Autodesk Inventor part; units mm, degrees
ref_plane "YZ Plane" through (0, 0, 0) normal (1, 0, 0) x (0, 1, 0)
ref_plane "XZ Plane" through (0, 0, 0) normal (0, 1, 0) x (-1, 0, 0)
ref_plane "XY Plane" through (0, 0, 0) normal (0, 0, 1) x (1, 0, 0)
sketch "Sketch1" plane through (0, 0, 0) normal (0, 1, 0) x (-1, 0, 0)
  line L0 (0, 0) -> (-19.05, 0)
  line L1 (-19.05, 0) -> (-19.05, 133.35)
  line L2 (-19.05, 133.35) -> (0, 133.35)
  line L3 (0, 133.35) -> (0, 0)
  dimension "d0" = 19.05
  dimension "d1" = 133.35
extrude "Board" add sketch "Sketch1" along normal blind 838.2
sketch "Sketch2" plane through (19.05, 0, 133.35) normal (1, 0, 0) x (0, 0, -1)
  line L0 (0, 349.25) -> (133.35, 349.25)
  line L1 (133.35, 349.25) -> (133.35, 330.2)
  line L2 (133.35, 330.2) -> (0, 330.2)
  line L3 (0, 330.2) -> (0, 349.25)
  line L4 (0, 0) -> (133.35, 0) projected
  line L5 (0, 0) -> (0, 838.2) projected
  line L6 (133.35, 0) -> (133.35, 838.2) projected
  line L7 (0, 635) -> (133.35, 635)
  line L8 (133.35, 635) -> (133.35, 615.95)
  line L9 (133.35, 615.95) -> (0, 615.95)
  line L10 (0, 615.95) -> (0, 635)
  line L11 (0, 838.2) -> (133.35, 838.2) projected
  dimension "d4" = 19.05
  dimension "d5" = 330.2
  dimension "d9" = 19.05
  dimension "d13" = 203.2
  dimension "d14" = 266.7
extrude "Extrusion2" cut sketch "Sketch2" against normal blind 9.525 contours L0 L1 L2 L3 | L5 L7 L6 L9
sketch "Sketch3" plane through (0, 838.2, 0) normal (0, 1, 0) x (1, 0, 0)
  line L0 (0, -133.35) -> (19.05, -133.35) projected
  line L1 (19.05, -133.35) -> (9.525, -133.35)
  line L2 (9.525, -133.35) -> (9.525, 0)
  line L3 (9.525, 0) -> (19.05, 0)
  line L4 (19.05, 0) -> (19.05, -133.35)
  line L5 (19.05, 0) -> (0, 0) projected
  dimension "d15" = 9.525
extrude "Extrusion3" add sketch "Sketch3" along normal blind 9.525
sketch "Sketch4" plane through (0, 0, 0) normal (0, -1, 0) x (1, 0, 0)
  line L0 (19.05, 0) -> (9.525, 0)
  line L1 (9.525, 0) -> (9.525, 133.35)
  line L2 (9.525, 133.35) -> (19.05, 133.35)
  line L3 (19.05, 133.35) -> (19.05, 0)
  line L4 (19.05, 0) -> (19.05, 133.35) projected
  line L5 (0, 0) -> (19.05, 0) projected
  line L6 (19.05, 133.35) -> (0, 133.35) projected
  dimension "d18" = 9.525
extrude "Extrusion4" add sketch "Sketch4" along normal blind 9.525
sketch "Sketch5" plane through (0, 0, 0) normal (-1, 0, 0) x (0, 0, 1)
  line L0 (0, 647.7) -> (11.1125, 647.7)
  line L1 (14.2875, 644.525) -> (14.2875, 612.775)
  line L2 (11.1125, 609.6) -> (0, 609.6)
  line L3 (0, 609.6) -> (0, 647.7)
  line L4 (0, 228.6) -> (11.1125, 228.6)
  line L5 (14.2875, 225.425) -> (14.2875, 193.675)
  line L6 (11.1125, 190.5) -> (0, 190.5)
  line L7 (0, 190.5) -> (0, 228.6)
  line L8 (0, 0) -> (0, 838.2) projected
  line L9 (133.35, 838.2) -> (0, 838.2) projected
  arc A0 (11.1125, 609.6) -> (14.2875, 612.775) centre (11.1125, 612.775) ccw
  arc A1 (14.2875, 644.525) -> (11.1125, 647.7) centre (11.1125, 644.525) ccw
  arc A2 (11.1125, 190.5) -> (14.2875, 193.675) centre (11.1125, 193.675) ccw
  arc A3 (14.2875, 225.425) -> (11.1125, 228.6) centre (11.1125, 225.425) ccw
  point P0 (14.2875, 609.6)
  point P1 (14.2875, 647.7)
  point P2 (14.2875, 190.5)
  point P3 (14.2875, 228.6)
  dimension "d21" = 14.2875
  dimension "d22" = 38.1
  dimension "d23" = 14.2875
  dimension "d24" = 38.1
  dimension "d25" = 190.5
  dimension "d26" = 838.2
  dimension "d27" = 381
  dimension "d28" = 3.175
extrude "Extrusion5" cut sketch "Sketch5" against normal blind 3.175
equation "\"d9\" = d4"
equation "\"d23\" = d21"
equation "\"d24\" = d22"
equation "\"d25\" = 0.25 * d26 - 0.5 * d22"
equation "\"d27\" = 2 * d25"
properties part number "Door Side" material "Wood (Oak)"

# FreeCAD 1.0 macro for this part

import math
import FreeCAD as App
import Part
import Sketcher
Q = App.Units.Quantity

doc = App.newDocument("Part")
body = doc.addObject("PartDesign::Body", "Body")

# Sketch on XZ plane
sketch1 = doc.addObject("Sketcher::SketchObject", "Sketch")
body.addObject(sketch1)
sketch1.AttachmentSupport = (doc.XZ_Plane, [""])
sketch1.MapMode = "FlatFace"
sketch1.addGeometry(Part.LineSegment(App.Vector(19, 0, 0), App.Vector(0, 0, 0)), False)
sketch1.addGeometry(Part.LineSegment(App.Vector(0, 0, 0), App.Vector(0, 133, 0)), False)
sketch1.addGeometry(Part.LineSegment(App.Vector(0, 133, 0), App.Vector(19, 133, 0)), False)
sketch1.addGeometry(Part.LineSegment(App.Vector(19, 133, 0), App.Vector(19, 0, 0)), False)
sketch1.addConstraint(Sketcher.Constraint("Coincident", 0, 2, 1, 1))
sketch1.addConstraint(Sketcher.Constraint("Coincident", 1, 2, 2, 1))
sketch1.addConstraint(Sketcher.Constraint("Coincident", 2, 2, 3, 1))
sketch1.addConstraint(Sketcher.Constraint("Coincident", 3, 2, 0, 1))
sketch1.addConstraint(Sketcher.Constraint("Horizontal", 0))
sketch1.addConstraint(Sketcher.Constraint("Vertical", 1))
sketch1.addConstraint(Sketcher.Constraint("Horizontal", 2))
sketch1.addConstraint(Sketcher.Constraint("Vertical", 3))
sketch1.addConstraint(Sketcher.Constraint("Coincident", 0, 2, -1, 1))
sketch1.addConstraint(Sketcher.Constraint("DistanceX", 0, 2, 0, 1, Q("0.75 in")))
sketch1.addConstraint(Sketcher.Constraint("DistanceY", 1, 1, 1, 2, Q("5.25 in")))
pad1 = doc.addObject("PartDesign::Pad", "Pad")
body.addObject(pad1)
pad1.Profile = sketch1
pad1.Length = Q("33 in")
pad1.Reversed = True

# Sketch on YZ plane
sketch2 = doc.addObject("Sketcher::SketchObject", "Sketch001")
body.addObject(sketch2)
sketch2.AttachmentSupport = (doc.YZ_Plane, [""])
sketch2.MapMode = "FlatFace"
sketch2.AttachmentOffset = App.Placement(App.Vector(0, 0, 0.75 * 25.4), App.Rotation())
sketch2.addGeometry(Part.LineSegment(App.Vector(349, 0, 0), App.Vector(349, 133, 0)), False)
sketch2.addGeometry(Part.LineSegment(App.Vector(349, 133, 0), App.Vector(330, 133, 0)), False)
sketch2.addGeometry(Part.LineSegment(App.Vector(330, 133, 0), App.Vector(330, 0, 0)), False)
sketch2.addGeometry(Part.LineSegment(App.Vector(330, 0, 0), App.Vector(349, 0, 0)), False)
sketch2.addGeometry(Part.LineSegment(App.Vector(635, 133, 0), App.Vector(616, 133, 0)), False)
sketch2.addGeometry(Part.LineSegment(App.Vector(616, 133, 0), App.Vector(616, 0, 0)), False)
sketch2.addGeometry(Part.LineSegment(App.Vector(616, 0, 0), App.Vector(635, 0, 0)), False)
sketch2.addGeometry(Part.LineSegment(App.Vector(635, 0, 0), App.Vector(635, 133, 0)), False)
sketch2.addConstraint(Sketcher.Constraint("Coincident", 0, 2, 1, 1))
sketch2.addConstraint(Sketcher.Constraint("Coincident", 1, 2, 2, 1))
sketch2.addConstraint(Sketcher.Constraint("Coincident", 2, 2, 3, 1))
sketch2.addConstraint(Sketcher.Constraint("Coincident", 3, 2, 0, 1))
sketch2.addConstraint(Sketcher.Constraint("Coincident", 4, 2, 5, 1))
sketch2.addConstraint(Sketcher.Constraint("Coincident", 5, 2, 6, 1))
sketch2.addConstraint(Sketcher.Constraint("Coincident", 6, 2, 7, 1))
sketch2.addConstraint(Sketcher.Constraint("Coincident", 7, 2, 4, 1))
sketch2.addConstraint(Sketcher.Constraint("Vertical", 0))
sketch2.addConstraint(Sketcher.Constraint("Horizontal", 1))
sketch2.addConstraint(Sketcher.Constraint("Vertical", 2))
sketch2.addConstraint(Sketcher.Constraint("Horizontal", 3))
sketch2.addConstraint(Sketcher.Constraint("Horizontal", 4))
sketch2.addConstraint(Sketcher.Constraint("Vertical", 5))
sketch2.addConstraint(Sketcher.Constraint("Horizontal", 6))
sketch2.addConstraint(Sketcher.Constraint("Vertical", 7))
sketch2.addConstraint(Sketcher.Constraint("PointOnObject", 2, 2, -1))
sketch2.addConstraint(Sketcher.Constraint("PointOnObject", 5, 2, -1))
sketch2.addConstraint(Sketcher.Constraint("Horizontal", 1, 2, 4, 2))
sketch2.addConstraint(Sketcher.Constraint("Equal", 3, 4))
sketch2.addConstraint(Sketcher.Constraint("DistanceX", -1, 1, 1, 2, Q("13 in")))
sketch2.addConstraint(Sketcher.Constraint("DistanceX", 1, 2, 1, 1, Q("0.75 in")))
sketch2.addConstraint(Sketcher.Constraint("DistanceX", 0, 2, 4, 2, Q("10.5 in")))
sketch2.addConstraint(Sketcher.Constraint("DistanceY", 0, 1, 0, 2, Q("5.25 in")))
pocket1 = doc.addObject("PartDesign::Pocket", "Pocket")
body.addObject(pocket1)
pocket1.Profile = sketch2
pocket1.Length = Q("0.375 in")

# Sketch on XZ plane
sketch3 = doc.addObject("Sketcher::SketchObject", "Sketch002")
body.addObject(sketch3)
sketch3.AttachmentSupport = (doc.XZ_Plane, [""])
sketch3.MapMode = "FlatFace"
sketch3.AttachmentOffset = App.Placement(App.Vector(0, 0, -33 * 25.4), App.Rotation())
sketch3.addGeometry(Part.LineSegment(App.Vector(10, 0, 0), App.Vector(10, 133, 0)), False)
sketch3.addGeometry(Part.LineSegment(App.Vector(10, 133, 0), App.Vector(19, 133, 0)), False)
sketch3.addGeometry(Part.LineSegment(App.Vector(19, 133, 0), App.Vector(19, 0, 0)), False)
sketch3.addGeometry(Part.LineSegment(App.Vector(19, 0, 0), App.Vector(10, 0, 0)), False)
sketch3.addConstraint(Sketcher.Constraint("Coincident", 0, 2, 1, 1))
sketch3.addConstraint(Sketcher.Constraint("Coincident", 1, 2, 2, 1))
sketch3.addConstraint(Sketcher.Constraint("Coincident", 2, 2, 3, 1))
sketch3.addConstraint(Sketcher.Constraint("Coincident", 3, 2, 0, 1))
sketch3.addConstraint(Sketcher.Constraint("Vertical", 0))
sketch3.addConstraint(Sketcher.Constraint("Horizontal", 1))
sketch3.addConstraint(Sketcher.Constraint("Vertical", 2))
sketch3.addConstraint(Sketcher.Constraint("Horizontal", 3))
sketch3.addConstraint(Sketcher.Constraint("PointOnObject", 2, 2, -1))
sketch3.addConstraint(Sketcher.Constraint("DistanceX", 1, 1, 1, 2, Q("0.375 in")))
sketch3.addConstraint(Sketcher.Constraint("DistanceX", -1, 1, 0, 2, Q("0.375 in")))
sketch3.addConstraint(Sketcher.Constraint("DistanceY", 0, 1, 0, 2, Q("5.25 in")))
pad2 = doc.addObject("PartDesign::Pad", "Pad001")
body.addObject(pad2)
pad2.Profile = sketch3
pad2.Length = Q("0.375 in")
pad2.Reversed = True

# Sketch on XZ plane
sketch4 = doc.addObject("Sketcher::SketchObject", "Sketch003")
body.addObject(sketch4)
sketch4.AttachmentSupport = (doc.XZ_Plane, [""])
sketch4.MapMode = "FlatFace"
sketch4.addGeometry(Part.LineSegment(App.Vector(10, 0, 0), App.Vector(19, 0, 0)), False)
sketch4.addGeometry(Part.LineSegment(App.Vector(19, 0, 0), App.Vector(19, 133, 0)), False)
sketch4.addGeometry(Part.LineSegment(App.Vector(19, 133, 0), App.Vector(10, 133, 0)), False)
sketch4.addGeometry(Part.LineSegment(App.Vector(10, 133, 0), App.Vector(10, 0, 0)), False)
sketch4.addConstraint(Sketcher.Constraint("Coincident", 0, 2, 1, 1))
sketch4.addConstraint(Sketcher.Constraint("Coincident", 1, 2, 2, 1))
sketch4.addConstraint(Sketcher.Constraint("Coincident", 2, 2, 3, 1))
sketch4.addConstraint(Sketcher.Constraint("Coincident", 3, 2, 0, 1))
sketch4.addConstraint(Sketcher.Constraint("Horizontal", 0))
sketch4.addConstraint(Sketcher.Constraint("Vertical", 1))
sketch4.addConstraint(Sketcher.Constraint("Horizontal", 2))
sketch4.addConstraint(Sketcher.Constraint("Vertical", 3))
sketch4.addConstraint(Sketcher.Constraint("PointOnObject", 0, 2, -1))
sketch4.addConstraint(Sketcher.Constraint("DistanceX", 0, 1, 0, 2, Q("0.375 in")))
sketch4.addConstraint(Sketcher.Constraint("DistanceX", -1, 1, 2, 2, Q("0.375 in")))
sketch4.addConstraint(Sketcher.Constraint("DistanceY", 1, 1, 1, 2, Q("5.25 in")))
pad3 = doc.addObject("PartDesign::Pad", "Pad002")
body.addObject(pad3)
pad3.Profile = sketch4
pad3.Length = Q("0.375 in")

# Sketch on YZ plane
sketch5 = doc.addObject("Sketcher::SketchObject", "Sketch004")
body.addObject(sketch5)
sketch5.AttachmentSupport = (doc.YZ_Plane, [""])
sketch5.MapMode = "FlatFace"
sketch5.addGeometry(Part.LineSegment(App.Vector(228.6, 11.1, 0), App.Vector(228.6, 0, 0)), False)
sketch5.addGeometry(Part.LineSegment(App.Vector(228.6, 0, 0), App.Vector(190.5, 0, 0)), False)
sketch5.addGeometry(Part.LineSegment(App.Vector(190.5, 0, 0), App.Vector(190.5, 11.1, 0)), False)
sketch5.addGeometry(Part.ArcOfCircle(Part.Circle(App.Vector(193.7, 11.1, 0), App.Vector(0, 0, 1), 3.2), math.radians(90), math.radians(180)), False)
sketch5.addGeometry(Part.LineSegment(App.Vector(193.7, 14.3, 0), App.Vector(225.4, 14.3, 0)), False)
sketch5.addGeometry(Part.ArcOfCircle(Part.Circle(App.Vector(225.4, 11.1, 0), App.Vector(0, 0, 1), 3.2), math.radians(0), math.radians(90)), False)
sketch5.addGeometry(Part.LineSegment(App.Vector(647.7, 11.1, 0), App.Vector(647.7, 0, 0)), False)
sketch5.addGeometry(Part.LineSegment(App.Vector(647.7, 0, 0), App.Vector(609.6, 0, 0)), False)
sketch5.addGeometry(Part.LineSegment(App.Vector(609.6, 0, 0), App.Vector(609.6, 11.1, 0)), False)
sketch5.addGeometry(Part.ArcOfCircle(Part.Circle(App.Vector(612.8, 11.1, 0), App.Vector(0, 0, 1), 3.2), math.radians(90), math.radians(180)), False)
sketch5.addGeometry(Part.LineSegment(App.Vector(612.8, 14.3, 0), App.Vector(644.5, 14.3, 0)), False)
sketch5.addGeometry(Part.ArcOfCircle(Part.Circle(App.Vector(644.5, 11.1, 0), App.Vector(0, 0, 1), 3.2), math.radians(0), math.radians(90)), False)
sketch5.addConstraint(Sketcher.Constraint("Coincident", 0, 2, 1, 1))
sketch5.addConstraint(Sketcher.Constraint("Coincident", 1, 2, 2, 1))
sketch5.addConstraint(Sketcher.Constraint("Tangent", 2, 2, 3, 2))
sketch5.addConstraint(Sketcher.Constraint("Tangent", 3, 1, 4, 1))
sketch5.addConstraint(Sketcher.Constraint("Tangent", 4, 2, 5, 2))
sketch5.addConstraint(Sketcher.Constraint("Tangent", 5, 1, 0, 1))
sketch5.addConstraint(Sketcher.Constraint("Coincident", 6, 2, 7, 1))
sketch5.addConstraint(Sketcher.Constraint("Coincident", 7, 2, 8, 1))
sketch5.addConstraint(Sketcher.Constraint("Tangent", 8, 2, 9, 2))
sketch5.addConstraint(Sketcher.Constraint("Tangent", 9, 1, 10, 1))
sketch5.addConstraint(Sketcher.Constraint("Tangent", 10, 2, 11, 2))
sketch5.addConstraint(Sketcher.Constraint("Tangent", 11, 1, 6, 1))
sketch5.addConstraint(Sketcher.Constraint("Vertical", 0))
sketch5.addConstraint(Sketcher.Constraint("Horizontal", 1))
sketch5.addConstraint(Sketcher.Constraint("Vertical", 2))
sketch5.addConstraint(Sketcher.Constraint("Horizontal", 4))
sketch5.addConstraint(Sketcher.Constraint("Vertical", 6))
sketch5.addConstraint(Sketcher.Constraint("Horizontal", 7))
sketch5.addConstraint(Sketcher.Constraint("Vertical", 8))
sketch5.addConstraint(Sketcher.Constraint("Horizontal", 10))
sketch5.addConstraint(Sketcher.Constraint("Equal", 3, 5))
sketch5.addConstraint(Sketcher.Constraint("Equal", 5, 9))
sketch5.addConstraint(Sketcher.Constraint("Equal", 9, 11))
sketch5.addConstraint(Sketcher.Constraint("PointOnObject", 0, 2, -1))
sketch5.addConstraint(Sketcher.Constraint("PointOnObject", 6, 2, -1))
sketch5.addConstraint(Sketcher.Constraint("Horizontal", 5, 3, 9, 3))
sketch5.addConstraint(Sketcher.Constraint("Equal", 1, 7))
sketch5.addConstraint(Sketcher.Constraint("DistanceX", 1, 2, 1, 1, Q("1.5 in")))
sketch5.addConstraint(Sketcher.Constraint("Radius", 3, Q("0.125 in")))
sketch5.addConstraint(Sketcher.Constraint("DistanceX", 0, 2, 7, 2, Q("15 in")))
sketch5.addConstraint(Sketcher.Constraint("DistanceX", -1, 1, 1, 2, Q("7.5 in")))
sketch5.addConstraint(Sketcher.Constraint("DistanceY", -1, 1, 3, 1, Q("0.5625 in")))
pocket2 = doc.addObject("PartDesign::Pocket", "Pocket001")
body.addObject(pocket2)
pocket2.Profile = sketch5
pocket2.Length = Q("0.125 in")
pocket2.Reversed = True

doc.recompute()
